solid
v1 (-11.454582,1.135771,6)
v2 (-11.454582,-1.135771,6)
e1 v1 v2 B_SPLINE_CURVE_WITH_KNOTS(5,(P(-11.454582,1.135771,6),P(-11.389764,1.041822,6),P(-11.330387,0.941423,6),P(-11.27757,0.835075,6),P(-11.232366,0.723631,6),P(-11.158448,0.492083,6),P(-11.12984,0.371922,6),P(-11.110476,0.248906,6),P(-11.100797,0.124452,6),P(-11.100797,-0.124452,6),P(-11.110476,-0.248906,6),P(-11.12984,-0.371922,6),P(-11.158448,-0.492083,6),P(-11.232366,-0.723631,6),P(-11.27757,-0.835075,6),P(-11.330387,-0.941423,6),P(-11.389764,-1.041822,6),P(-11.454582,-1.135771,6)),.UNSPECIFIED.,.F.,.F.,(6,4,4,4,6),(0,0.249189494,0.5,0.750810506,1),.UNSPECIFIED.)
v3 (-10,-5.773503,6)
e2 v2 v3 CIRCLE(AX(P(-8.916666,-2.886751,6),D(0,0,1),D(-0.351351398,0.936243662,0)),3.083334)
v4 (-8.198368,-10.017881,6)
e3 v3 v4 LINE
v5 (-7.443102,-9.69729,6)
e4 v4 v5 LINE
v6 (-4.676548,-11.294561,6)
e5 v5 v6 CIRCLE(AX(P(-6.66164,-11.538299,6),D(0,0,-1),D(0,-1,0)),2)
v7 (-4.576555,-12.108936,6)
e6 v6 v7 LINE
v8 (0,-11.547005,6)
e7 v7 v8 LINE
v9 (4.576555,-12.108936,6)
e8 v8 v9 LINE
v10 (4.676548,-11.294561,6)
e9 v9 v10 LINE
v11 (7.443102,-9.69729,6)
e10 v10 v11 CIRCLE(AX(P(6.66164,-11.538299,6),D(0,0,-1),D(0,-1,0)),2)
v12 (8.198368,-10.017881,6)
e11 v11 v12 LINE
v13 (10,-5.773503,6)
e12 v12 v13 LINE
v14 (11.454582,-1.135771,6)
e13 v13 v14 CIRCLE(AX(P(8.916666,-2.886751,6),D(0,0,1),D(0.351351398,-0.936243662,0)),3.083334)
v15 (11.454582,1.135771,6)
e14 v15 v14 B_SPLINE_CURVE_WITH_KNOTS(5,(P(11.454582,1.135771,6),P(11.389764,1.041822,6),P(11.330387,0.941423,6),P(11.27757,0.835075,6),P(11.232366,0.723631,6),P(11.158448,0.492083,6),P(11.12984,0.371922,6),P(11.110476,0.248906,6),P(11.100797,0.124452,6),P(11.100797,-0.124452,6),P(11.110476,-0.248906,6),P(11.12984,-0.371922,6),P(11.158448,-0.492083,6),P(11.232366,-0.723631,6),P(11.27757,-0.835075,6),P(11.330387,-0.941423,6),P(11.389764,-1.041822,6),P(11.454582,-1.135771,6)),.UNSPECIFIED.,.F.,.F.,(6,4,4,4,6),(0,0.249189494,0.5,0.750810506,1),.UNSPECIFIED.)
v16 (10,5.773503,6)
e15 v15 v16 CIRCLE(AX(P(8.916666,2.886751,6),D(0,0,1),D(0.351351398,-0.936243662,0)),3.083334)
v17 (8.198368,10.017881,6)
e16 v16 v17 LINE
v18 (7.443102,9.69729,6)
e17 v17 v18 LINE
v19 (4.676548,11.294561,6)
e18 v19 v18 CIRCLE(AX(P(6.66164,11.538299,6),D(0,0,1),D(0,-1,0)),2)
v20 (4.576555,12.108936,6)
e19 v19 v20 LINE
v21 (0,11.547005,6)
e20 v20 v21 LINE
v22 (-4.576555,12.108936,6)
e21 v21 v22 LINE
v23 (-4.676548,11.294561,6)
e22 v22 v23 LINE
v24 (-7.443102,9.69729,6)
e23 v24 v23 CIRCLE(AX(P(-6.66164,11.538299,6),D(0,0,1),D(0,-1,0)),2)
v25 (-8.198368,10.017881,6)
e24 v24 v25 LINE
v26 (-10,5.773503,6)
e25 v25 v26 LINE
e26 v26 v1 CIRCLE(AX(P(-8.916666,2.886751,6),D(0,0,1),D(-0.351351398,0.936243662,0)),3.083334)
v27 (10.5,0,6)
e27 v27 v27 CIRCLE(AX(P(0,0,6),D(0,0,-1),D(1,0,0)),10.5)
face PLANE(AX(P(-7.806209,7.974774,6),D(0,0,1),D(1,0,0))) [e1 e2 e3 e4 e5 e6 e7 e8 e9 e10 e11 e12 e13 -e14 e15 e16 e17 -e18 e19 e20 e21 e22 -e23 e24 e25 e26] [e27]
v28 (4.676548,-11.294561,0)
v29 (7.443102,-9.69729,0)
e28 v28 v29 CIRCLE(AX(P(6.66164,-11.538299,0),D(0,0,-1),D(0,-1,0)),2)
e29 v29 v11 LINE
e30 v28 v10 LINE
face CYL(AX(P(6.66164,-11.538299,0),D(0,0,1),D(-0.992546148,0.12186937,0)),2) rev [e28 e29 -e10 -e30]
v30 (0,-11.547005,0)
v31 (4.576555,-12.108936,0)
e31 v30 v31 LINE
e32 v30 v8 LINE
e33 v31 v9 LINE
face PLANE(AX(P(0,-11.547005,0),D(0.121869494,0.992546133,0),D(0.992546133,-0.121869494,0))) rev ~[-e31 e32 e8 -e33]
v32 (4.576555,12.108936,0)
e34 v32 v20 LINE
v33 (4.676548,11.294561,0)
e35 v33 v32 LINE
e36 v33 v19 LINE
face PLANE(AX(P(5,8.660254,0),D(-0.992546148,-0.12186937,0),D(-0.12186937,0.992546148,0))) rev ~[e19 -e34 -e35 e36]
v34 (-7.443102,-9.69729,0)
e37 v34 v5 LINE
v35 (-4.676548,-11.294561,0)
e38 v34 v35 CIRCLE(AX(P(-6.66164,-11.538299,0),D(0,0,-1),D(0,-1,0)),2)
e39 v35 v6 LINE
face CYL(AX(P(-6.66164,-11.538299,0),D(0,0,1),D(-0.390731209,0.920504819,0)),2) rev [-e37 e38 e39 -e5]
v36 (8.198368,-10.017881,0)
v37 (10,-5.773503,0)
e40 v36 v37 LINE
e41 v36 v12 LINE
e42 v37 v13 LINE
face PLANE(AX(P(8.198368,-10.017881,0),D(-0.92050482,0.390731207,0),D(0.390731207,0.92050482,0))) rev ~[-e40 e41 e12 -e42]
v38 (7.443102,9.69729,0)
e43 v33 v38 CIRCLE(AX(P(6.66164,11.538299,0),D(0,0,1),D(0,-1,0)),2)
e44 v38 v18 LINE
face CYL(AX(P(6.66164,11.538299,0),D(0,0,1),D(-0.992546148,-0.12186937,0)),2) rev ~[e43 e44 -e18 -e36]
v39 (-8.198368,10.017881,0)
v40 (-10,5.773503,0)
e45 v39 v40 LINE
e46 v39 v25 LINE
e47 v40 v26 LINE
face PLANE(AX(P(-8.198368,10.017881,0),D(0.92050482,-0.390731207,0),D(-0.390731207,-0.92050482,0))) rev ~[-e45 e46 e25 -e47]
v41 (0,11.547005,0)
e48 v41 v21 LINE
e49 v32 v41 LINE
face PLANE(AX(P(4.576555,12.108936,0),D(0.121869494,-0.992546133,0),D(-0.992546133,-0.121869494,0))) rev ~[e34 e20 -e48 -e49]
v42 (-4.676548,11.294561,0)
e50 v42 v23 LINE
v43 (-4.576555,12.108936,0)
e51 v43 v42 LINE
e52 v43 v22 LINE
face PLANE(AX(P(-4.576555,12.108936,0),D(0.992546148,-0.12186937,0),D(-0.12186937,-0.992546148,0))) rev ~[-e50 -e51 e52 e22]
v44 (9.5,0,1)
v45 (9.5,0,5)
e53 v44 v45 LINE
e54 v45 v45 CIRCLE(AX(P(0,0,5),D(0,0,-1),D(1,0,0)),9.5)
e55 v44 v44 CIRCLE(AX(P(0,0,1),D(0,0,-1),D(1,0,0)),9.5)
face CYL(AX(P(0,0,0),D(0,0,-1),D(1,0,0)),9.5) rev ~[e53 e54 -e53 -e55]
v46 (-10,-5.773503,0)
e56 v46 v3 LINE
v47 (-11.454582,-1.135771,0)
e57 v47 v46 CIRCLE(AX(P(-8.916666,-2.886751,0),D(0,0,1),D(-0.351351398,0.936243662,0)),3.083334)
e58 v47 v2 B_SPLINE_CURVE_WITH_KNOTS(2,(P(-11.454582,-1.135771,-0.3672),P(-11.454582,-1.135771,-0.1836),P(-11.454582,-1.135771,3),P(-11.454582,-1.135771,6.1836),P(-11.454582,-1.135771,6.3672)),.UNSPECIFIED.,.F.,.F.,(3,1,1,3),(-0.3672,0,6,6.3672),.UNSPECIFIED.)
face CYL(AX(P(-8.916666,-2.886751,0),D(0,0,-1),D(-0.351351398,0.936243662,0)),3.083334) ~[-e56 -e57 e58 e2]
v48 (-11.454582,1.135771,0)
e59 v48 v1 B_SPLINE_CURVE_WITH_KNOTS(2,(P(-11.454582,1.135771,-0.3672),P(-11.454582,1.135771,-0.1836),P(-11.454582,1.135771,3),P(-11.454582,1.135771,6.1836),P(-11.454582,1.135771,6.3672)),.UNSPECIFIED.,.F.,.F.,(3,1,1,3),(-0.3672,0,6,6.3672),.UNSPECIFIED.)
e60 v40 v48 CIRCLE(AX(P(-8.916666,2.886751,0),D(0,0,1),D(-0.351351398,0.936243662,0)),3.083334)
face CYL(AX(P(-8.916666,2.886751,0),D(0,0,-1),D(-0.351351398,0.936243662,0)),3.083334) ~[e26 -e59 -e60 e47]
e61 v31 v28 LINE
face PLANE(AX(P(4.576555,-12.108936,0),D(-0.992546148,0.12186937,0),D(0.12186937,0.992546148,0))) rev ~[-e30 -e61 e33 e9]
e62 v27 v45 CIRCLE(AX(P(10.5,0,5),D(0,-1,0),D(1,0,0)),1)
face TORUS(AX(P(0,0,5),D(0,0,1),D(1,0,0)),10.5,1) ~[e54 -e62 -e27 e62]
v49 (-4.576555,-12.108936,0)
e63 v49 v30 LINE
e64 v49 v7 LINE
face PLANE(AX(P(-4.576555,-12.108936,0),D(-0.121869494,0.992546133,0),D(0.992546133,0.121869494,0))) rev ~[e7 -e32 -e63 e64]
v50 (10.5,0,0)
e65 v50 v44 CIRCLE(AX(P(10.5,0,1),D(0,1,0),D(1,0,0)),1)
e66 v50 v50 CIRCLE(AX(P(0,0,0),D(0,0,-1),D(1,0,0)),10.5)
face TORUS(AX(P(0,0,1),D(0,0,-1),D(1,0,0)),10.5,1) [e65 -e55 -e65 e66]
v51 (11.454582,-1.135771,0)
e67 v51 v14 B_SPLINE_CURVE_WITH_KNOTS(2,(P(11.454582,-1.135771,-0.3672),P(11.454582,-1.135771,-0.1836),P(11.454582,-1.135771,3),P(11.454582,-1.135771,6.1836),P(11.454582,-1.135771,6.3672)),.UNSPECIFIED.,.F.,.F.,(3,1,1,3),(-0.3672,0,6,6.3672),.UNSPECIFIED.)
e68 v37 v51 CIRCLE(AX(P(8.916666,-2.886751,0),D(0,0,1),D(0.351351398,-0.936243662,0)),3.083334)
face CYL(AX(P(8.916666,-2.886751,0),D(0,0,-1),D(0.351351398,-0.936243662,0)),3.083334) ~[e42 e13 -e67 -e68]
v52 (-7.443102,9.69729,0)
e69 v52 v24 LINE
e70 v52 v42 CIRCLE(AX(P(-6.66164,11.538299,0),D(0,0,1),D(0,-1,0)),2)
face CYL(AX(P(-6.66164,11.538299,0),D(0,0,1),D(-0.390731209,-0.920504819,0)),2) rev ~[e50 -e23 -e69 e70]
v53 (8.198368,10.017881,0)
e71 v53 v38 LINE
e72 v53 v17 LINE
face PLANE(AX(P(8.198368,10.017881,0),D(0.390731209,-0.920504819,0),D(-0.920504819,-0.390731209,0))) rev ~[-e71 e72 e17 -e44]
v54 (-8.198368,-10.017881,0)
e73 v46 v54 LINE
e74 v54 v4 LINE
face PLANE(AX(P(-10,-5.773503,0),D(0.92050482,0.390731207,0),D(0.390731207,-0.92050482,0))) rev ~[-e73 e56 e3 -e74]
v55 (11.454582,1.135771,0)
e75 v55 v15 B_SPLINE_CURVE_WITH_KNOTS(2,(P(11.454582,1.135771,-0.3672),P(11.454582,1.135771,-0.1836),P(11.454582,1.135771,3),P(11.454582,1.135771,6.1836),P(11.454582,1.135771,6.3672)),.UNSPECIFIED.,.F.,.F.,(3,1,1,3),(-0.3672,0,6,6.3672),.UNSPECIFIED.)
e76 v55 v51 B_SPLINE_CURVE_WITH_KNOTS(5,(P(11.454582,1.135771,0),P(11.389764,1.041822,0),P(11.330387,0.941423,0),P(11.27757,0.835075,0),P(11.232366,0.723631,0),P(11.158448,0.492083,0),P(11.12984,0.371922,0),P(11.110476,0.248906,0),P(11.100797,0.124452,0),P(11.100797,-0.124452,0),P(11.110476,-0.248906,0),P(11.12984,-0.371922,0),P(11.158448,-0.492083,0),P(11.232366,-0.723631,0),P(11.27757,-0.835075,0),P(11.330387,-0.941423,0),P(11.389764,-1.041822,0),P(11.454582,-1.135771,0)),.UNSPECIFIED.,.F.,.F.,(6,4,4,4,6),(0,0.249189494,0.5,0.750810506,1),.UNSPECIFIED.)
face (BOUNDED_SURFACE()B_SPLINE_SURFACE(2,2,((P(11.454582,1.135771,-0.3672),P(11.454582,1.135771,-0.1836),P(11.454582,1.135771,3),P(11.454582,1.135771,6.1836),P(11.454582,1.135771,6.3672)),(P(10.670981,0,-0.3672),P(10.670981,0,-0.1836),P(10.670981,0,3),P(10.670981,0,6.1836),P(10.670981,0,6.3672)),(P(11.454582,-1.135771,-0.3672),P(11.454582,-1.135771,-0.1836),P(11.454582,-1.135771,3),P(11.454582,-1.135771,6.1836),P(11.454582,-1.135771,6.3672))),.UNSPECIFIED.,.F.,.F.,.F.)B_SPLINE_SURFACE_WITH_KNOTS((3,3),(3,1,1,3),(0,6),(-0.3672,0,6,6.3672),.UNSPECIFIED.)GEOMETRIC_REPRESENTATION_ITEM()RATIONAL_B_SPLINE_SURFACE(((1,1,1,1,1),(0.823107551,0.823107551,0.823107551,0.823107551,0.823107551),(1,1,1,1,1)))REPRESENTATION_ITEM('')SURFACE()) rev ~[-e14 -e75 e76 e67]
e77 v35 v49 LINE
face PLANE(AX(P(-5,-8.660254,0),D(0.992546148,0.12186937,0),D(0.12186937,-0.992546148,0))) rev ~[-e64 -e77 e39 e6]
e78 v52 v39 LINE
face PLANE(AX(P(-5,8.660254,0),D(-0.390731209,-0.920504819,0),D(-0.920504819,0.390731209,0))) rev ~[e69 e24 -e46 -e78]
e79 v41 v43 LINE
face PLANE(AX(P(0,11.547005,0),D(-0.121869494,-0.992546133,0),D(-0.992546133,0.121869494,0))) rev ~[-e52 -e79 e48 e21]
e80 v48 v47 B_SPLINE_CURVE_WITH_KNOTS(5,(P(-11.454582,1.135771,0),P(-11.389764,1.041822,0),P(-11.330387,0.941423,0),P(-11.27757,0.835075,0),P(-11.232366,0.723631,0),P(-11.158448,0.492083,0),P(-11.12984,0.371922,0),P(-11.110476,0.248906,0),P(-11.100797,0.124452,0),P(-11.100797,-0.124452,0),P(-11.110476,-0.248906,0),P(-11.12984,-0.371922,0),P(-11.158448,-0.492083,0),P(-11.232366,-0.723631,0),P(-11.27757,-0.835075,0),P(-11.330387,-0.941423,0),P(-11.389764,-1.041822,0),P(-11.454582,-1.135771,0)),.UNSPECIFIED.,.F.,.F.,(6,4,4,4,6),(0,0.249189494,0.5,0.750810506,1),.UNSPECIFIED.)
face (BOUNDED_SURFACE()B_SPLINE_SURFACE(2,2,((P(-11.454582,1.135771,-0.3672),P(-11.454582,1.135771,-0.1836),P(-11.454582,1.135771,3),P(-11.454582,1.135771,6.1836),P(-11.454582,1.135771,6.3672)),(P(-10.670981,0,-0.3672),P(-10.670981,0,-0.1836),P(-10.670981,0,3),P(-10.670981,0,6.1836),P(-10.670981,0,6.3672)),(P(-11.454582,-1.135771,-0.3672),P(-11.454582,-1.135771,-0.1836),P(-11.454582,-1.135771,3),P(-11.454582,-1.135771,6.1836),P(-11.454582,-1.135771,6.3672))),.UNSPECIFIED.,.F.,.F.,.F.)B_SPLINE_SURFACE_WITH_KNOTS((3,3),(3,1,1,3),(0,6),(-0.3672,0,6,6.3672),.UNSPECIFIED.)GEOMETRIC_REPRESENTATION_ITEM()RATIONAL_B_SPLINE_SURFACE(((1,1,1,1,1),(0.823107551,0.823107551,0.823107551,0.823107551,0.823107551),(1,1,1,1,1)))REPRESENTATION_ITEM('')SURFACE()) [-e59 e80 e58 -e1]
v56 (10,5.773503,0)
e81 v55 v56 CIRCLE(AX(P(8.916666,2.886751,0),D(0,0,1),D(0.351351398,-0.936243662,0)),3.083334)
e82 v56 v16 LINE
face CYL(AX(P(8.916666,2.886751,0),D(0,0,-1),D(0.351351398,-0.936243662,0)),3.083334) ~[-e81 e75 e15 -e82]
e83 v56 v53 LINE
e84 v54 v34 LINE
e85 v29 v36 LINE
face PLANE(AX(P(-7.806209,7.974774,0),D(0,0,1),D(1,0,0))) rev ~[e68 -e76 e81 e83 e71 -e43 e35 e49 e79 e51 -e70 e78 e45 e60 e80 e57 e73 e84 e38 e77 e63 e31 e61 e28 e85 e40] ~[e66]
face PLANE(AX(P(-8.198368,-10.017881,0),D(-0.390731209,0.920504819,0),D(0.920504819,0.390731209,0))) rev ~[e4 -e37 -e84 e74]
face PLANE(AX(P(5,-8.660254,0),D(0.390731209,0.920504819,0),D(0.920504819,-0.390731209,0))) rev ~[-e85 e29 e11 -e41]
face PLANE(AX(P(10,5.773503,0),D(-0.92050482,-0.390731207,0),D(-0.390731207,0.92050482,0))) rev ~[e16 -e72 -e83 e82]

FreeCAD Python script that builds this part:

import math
import FreeCAD as App
import Part
import Sketcher
from FreeCAD import Vector
Q = App.Units.Quantity


def edges_at(feature, points):
    """Names of the edges that pass closest to the given points."""
    edges = feature.Shape.Edges
    near = lambda p: min(range(len(edges)), key=lambda i: edges[i].distToShape(Part.Vertex(*p))[0])
    return sorted({f"Edge{near(p) + 1}" for p in points})

doc = App.newDocument("Part")
body = doc.addObject("PartDesign::Body", "Body")

# Sketch on XY plane
sketch1 = body.newObject("Sketcher::SketchObject", "Sketch")
sketch1.AttachmentSupport = (doc.getObject("XY_Plane"), [""])
sketch1.MapMode = "FlatFace"
sketch1.addGeometry(Part.LineSegment(Vector(-8.2, 10, 0), Vector(-10, 5.8, 0)), False)
sketch1.addGeometry(Part.ArcOfCircle(Part.Circle(Vector(-8.9, 2.9, 0), Vector(0, 0, 1), 3.1), math.radians(111), math.radians(249)), False)
sketch1.addGeometry(Part.ArcOfCircle(Part.Circle(Vector(-8.9, -2.9, 0), Vector(0, 0, 1), 3.1), math.radians(111), math.radians(249)), False)
sketch1.addGeometry(Part.LineSegment(Vector(-10, -5.8, 0), Vector(-8.2, -10, 0)), False)
sketch1.addGeometry(Part.LineSegment(Vector(-8.2, -10, 0), Vector(-5, -8.7, 0)), False)
sketch1.addGeometry(Part.LineSegment(Vector(-5, -8.7, 0), Vector(-4.6, -12.1, 0)), False)
sketch1.addGeometry(Part.LineSegment(Vector(-4.6, -12.1, 0), Vector(0, -11.5, 0)), False)
sketch1.addGeometry(Part.LineSegment(Vector(0, -11.5, 0), Vector(4.6, -12.1, 0)), False)
sketch1.addGeometry(Part.LineSegment(Vector(4.6, -12.1, 0), Vector(5, -8.7, 0)), False)
sketch1.addGeometry(Part.LineSegment(Vector(5, -8.7, 0), Vector(8.2, -10, 0)), False)
sketch1.addGeometry(Part.LineSegment(Vector(8.2, -10, 0), Vector(10, -5.8, 0)), False)
sketch1.addGeometry(Part.ArcOfCircle(Part.Circle(Vector(8.9, -2.9, 0), Vector(0, 0, 1), 3.1), math.radians(-69), math.radians(69)), False)
sketch1.addGeometry(Part.ArcOfCircle(Part.Circle(Vector(8.9, 2.9, 0), Vector(0, 0, 1), 3.1), math.radians(-69), math.radians(69)), False)
sketch1.addGeometry(Part.LineSegment(Vector(10, 5.8, 0), Vector(8.2, 10, 0)), False)
sketch1.addGeometry(Part.LineSegment(Vector(8.2, 10, 0), Vector(5, 8.7, 0)), False)
sketch1.addGeometry(Part.LineSegment(Vector(5, 8.7, 0), Vector(4.6, 12.1, 0)), False)
sketch1.addGeometry(Part.LineSegment(Vector(4.6, 12.1, 0), Vector(0, 11.5, 0)), False)
sketch1.addGeometry(Part.LineSegment(Vector(0, 11.5, 0), Vector(-4.6, 12.1, 0)), False)
sketch1.addGeometry(Part.LineSegment(Vector(-4.6, 12.1, 0), Vector(-5, 8.7, 0)), False)
sketch1.addGeometry(Part.LineSegment(Vector(-5, 8.7, 0), Vector(-8.2, 10, 0)), False)
sketch1.addConstraint(Sketcher.Constraint("Coincident", 0, 2, 1, 1))
sketch1.addConstraint(Sketcher.Constraint("Coincident", 1, 2, 2, 1))
sketch1.addConstraint(Sketcher.Constraint("Coincident", 2, 2, 3, 1))
sketch1.addConstraint(Sketcher.Constraint("Coincident", 3, 2, 4, 1))
sketch1.addConstraint(Sketcher.Constraint("Coincident", 4, 2, 5, 1))
sketch1.addConstraint(Sketcher.Constraint("Coincident", 5, 2, 6, 1))
sketch1.addConstraint(Sketcher.Constraint("Coincident", 6, 2, 7, 1))
sketch1.addConstraint(Sketcher.Constraint("Coincident", 7, 2, 8, 1))
sketch1.addConstraint(Sketcher.Constraint("Coincident", 8, 2, 9, 1))
sketch1.addConstraint(Sketcher.Constraint("Coincident", 9, 2, 10, 1))
sketch1.addConstraint(Sketcher.Constraint("Coincident", 10, 2, 11, 1))
sketch1.addConstraint(Sketcher.Constraint("Coincident", 11, 2, 12, 1))
sketch1.addConstraint(Sketcher.Constraint("Coincident", 12, 2, 13, 1))
sketch1.addConstraint(Sketcher.Constraint("Coincident", 13, 2, 14, 1))
sketch1.addConstraint(Sketcher.Constraint("Coincident", 14, 2, 15, 1))
sketch1.addConstraint(Sketcher.Constraint("Coincident", 15, 2, 16, 1))
sketch1.addConstraint(Sketcher.Constraint("Coincident", 16, 2, 17, 1))
sketch1.addConstraint(Sketcher.Constraint("Coincident", 17, 2, 18, 1))
sketch1.addConstraint(Sketcher.Constraint("Coincident", 18, 2, 19, 1))
sketch1.addConstraint(Sketcher.Constraint("Coincident", 19, 2, 0, 1))
sketch1.addConstraint(Sketcher.Constraint("Equal", 1, 2))
sketch1.addConstraint(Sketcher.Constraint("Equal", 2, 11))
sketch1.addConstraint(Sketcher.Constraint("Equal", 11, 12))
sketch1.addConstraint(Sketcher.Constraint("Symmetric", 1, 3, 11, 3, -1, 1))
sketch1.addConstraint(Sketcher.Constraint("Symmetric", 2, 3, 12, 3, -1, 1))
sketch1.addConstraint(Sketcher.Constraint("Symmetric", 3, 2, 13, 2, -1, 1))
sketch1.addConstraint(Sketcher.Constraint("Symmetric", 4, 2, 14, 2, -1, 1))
sketch1.addConstraint(Sketcher.Constraint("Symmetric", 5, 2, 15, 2, -1, 1))
sketch1.addConstraint(Sketcher.Constraint("Symmetric", 6, 2, 16, 2, -1, 1))
sketch1.addConstraint(Sketcher.Constraint("Symmetric", 7, 2, 17, 2, -1, 1))
sketch1.addConstraint(Sketcher.Constraint("Symmetric", 8, 2, 18, 2, -1, 1))
sketch1.addConstraint(Sketcher.Constraint("Symmetric", 9, 2, 19, 2, -1, 1))
sketch1.addConstraint(Sketcher.Constraint("Symmetric", 2, 3, 11, 3, -2))
sketch1.addConstraint(Sketcher.Constraint("Symmetric", 5, 2, 7, 2, -2))
sketch1.addConstraint(Sketcher.Constraint("Symmetric", 4, 2, 8, 2, -2))
sketch1.addConstraint(Sketcher.Constraint("Symmetric", 3, 2, 9, 2, -2))
sketch1.addConstraint(Sketcher.Constraint("PointOnObject", 6, 2, -2))
sketch1.addConstraint(Sketcher.Constraint("Perpendicular", 3, 4))
sketch1.addConstraint(Sketcher.Constraint("Perpendicular", 5, 6))
sketch1.addConstraint(Sketcher.Constraint("Perpendicular", 0, 9))
sketch1.addConstraint(Sketcher.Constraint("Perpendicular", 9, 10))
sketch1.addConstraint(Sketcher.Constraint("Perpendicular", 4, 13))
sketch1.addConstraint(Sketcher.Constraint("Vertical", 0, 2, 1, 2))
sketch1.addConstraint(Sketcher.Constraint("Equal", 4, 5))
sketch1.addConstraint(Sketcher.Constraint("Equal", 3, 6))
sketch1.addConstraint(Sketcher.Constraint("Angle", 0, Q("-113.000005 deg")))
sketch1.addConstraint(Sketcher.Constraint("Angle", 5, Q("-82.999998 deg")))
sketch1.addConstraint(Sketcher.Constraint("DistanceX", 0, 2, -1, 1, 10.0))
sketch1.addConstraint(Sketcher.Constraint("DistanceX", 4, 2, -1, 1, 5.0))
sketch1.addConstraint(Sketcher.Constraint("Radius", 1, 3.083334))
sketch1.addConstraint(Sketcher.Constraint("DistanceX", 2, 3, 3, 2, 0.718298))
pad1 = body.newObject("PartDesign::Pad", "Pad")
pad1.Profile = sketch1
pad1.Length = 6

# Sketch on XY plane
sketch2 = body.newObject("Sketcher::SketchObject", "Sketch001")
sketch2.AttachmentSupport = (doc.getObject("XY_Plane"), [""])
sketch2.MapMode = "FlatFace"
sketch2.addGeometry(Part.Circle(Vector(0, 0, 0), Vector(0, 0, 1), 10), False)
sketch2.addConstraint(Sketcher.Constraint("Coincident", 0, 3, -1, 1))
sketch2.addConstraint(Sketcher.Constraint("Diameter", 0, 19.0))
pocket1 = body.newObject("PartDesign::Pocket", "Pocket")
pocket1.Profile = sketch2
pocket1.Length = 7
pocket1.Reversed = True
doc.recompute()

fillet = body.newObject("PartDesign::Fillet", "Fillet")
fillet.Base = (pocket1, edges_at(pocket1, [
    (5, 8.66, 3),
    (-5, 8.66, 3),
    (5, -8.66, 3),
    (-5, -8.66, 3),
    (10, 0, 3),
    (-10, 0, 3),
]))
fillet.Radius = 2
doc.recompute()

fillet2 = body.newObject("PartDesign::Fillet", "Fillet001")
fillet2.Base = (fillet, edges_at(fillet, [(-9.5, 0, 6), (-9.5, 0, 0)]))
fillet2.Radius = 1

doc.recompute()
